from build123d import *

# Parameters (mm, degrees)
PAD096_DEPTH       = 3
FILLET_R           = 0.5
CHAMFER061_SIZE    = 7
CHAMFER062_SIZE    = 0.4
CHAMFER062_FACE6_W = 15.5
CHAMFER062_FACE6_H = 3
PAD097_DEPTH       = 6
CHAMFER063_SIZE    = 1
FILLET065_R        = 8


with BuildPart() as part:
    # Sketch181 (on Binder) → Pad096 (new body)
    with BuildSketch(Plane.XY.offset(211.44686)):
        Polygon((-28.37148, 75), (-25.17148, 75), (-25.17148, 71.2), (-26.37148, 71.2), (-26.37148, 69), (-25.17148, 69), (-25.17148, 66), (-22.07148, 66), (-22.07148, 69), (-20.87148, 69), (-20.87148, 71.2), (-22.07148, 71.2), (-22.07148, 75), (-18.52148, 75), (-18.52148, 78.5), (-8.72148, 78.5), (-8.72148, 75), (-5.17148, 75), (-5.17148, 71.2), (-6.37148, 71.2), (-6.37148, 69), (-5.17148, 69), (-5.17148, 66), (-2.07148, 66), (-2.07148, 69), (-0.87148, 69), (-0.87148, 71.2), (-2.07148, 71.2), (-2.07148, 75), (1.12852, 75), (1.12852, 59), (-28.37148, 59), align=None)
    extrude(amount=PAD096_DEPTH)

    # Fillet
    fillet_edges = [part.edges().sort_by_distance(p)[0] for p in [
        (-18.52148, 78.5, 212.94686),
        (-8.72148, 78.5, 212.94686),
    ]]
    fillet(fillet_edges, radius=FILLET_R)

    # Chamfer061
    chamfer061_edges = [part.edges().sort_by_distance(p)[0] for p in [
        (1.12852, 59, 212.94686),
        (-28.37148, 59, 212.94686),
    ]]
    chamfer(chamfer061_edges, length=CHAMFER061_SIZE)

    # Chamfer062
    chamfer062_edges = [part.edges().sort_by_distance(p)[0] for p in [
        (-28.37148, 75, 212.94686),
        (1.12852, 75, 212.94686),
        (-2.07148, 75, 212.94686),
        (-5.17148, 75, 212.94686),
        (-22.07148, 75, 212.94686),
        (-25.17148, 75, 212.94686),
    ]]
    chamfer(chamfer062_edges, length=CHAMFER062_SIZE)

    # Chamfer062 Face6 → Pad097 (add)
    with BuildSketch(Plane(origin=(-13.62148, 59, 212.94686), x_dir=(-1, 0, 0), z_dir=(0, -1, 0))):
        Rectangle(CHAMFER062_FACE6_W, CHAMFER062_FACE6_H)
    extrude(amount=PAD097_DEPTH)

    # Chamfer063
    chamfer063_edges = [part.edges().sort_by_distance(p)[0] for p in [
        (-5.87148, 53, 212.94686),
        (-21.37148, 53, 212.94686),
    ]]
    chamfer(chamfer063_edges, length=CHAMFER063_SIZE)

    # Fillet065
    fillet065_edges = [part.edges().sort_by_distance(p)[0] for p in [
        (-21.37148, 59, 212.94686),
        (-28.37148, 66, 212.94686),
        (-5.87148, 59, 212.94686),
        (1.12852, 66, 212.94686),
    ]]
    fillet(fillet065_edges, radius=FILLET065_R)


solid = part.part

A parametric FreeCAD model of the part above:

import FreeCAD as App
import Part
import Sketcher
from FreeCAD import Vector


def edges_at(feature, points):
    """Names of the edges that pass closest to the given points."""
    edges = feature.Shape.Edges
    near = lambda p: min(range(len(edges)), key=lambda i: edges[i].distToShape(Part.Vertex(*p))[0])
    return sorted({f"Edge{near(p) + 1}" for p in points})

doc = App.newDocument("Part")
params = doc.addObject("Spreadsheet::Sheet", "Params")
for row, (alias, value) in enumerate([
    ("sketch1_height", "16 mm"),
    ("sketch1_height2", "3 mm"),
    ("sketch1_width", "3.2 mm"),
    ("sketch1_width2", "29.5 mm"),
    ("sketch1_width3", "1.2 mm"),
    ("pad1_length", "3 mm"),
    ("fillet_radius", "0.5 mm"),
    ("chamfer_size", "7 mm"),
    ("chamfer2_size", "0.4 mm"),
    ("sketch2_height", "3 mm"),
    ("sketch2_width", "15.5 mm"),
    ("pad2_length", "6 mm"),
    ("chamfer3_size", "1 mm"),
    ("fillet2_radius", "8 mm"),
], start=1):
    params.set(f"A{row}", alias)
    params.set(f"B{row}", "=" + value)
    params.setAlias(f"B{row}", alias)

body = doc.addObject("PartDesign::Body", "Body")

sketch1 = body.newObject("Sketcher::SketchObject", "Sketch")
sketch1.AttachmentSupport = (doc.getObject("XY_Plane"), [""])
sketch1.MapMode = "FlatFace"
sketch1.AttachmentOffset = App.Placement(Vector(0, 0, 211.44686), App.Rotation())
sketch1.addGeometry(Part.LineSegment(Vector(-25.2, 75, 0), Vector(-28.4, 75, 0)), False)
sketch1.addGeometry(Part.LineSegment(Vector(-28.4, 75, 0), Vector(-28.4, 59, 0)), False)
sketch1.addGeometry(Part.LineSegment(Vector(-28.4, 59, 0), Vector(1.1, 59, 0)), False)
sketch1.addGeometry(Part.LineSegment(Vector(1.1, 59, 0), Vector(1.1, 75, 0)), False)
sketch1.addGeometry(Part.LineSegment(Vector(1.1, 75, 0), Vector(-2.1, 75, 0)), False)
sketch1.addGeometry(Part.LineSegment(Vector(-2.1, 75, 0), Vector(-2.1, 71.2, 0)), False)
sketch1.addGeometry(Part.LineSegment(Vector(-2.1, 71.2, 0), Vector(-0.9, 71.2, 0)), False)
sketch1.addGeometry(Part.LineSegment(Vector(-0.9, 71.2, 0), Vector(-0.9, 69, 0)), False)
sketch1.addGeometry(Part.LineSegment(Vector(-0.9, 69, 0), Vector(-2.1, 69, 0)), False)
sketch1.addGeometry(Part.LineSegment(Vector(-2.1, 69, 0), Vector(-2.1, 66, 0)), False)
sketch1.addGeometry(Part.LineSegment(Vector(-2.1, 66, 0), Vector(-5.2, 66, 0)), False)
sketch1.addGeometry(Part.LineSegment(Vector(-5.2, 66, 0), Vector(-5.2, 69, 0)), False)
sketch1.addGeometry(Part.LineSegment(Vector(-5.2, 69, 0), Vector(-6.4, 69, 0)), False)
sketch1.addGeometry(Part.LineSegment(Vector(-6.4, 69, 0), Vector(-6.4, 71.2, 0)), False)
sketch1.addGeometry(Part.LineSegment(Vector(-6.4, 71.2, 0), Vector(-5.2, 71.2, 0)), False)
sketch1.addGeometry(Part.LineSegment(Vector(-5.2, 71.2, 0), Vector(-5.2, 75, 0)), False)
sketch1.addGeometry(Part.LineSegment(Vector(-5.2, 75, 0), Vector(-8.7, 75, 0)), False)
sketch1.addGeometry(Part.LineSegment(Vector(-8.7, 75, 0), Vector(-8.7, 78.5, 0)), False)
sketch1.addGeometry(Part.LineSegment(Vector(-8.7, 78.5, 0), Vector(-18.5, 78.5, 0)), False)
sketch1.addGeometry(Part.LineSegment(Vector(-18.5, 78.5, 0), Vector(-18.5, 75, 0)), False)
sketch1.addGeometry(Part.LineSegment(Vector(-18.5, 75, 0), Vector(-22.1, 75, 0)), False)
sketch1.addGeometry(Part.LineSegment(Vector(-22.1, 75, 0), Vector(-22.1, 71.2, 0)), False)
sketch1.addGeometry(Part.LineSegment(Vector(-22.1, 71.2, 0), Vector(-20.9, 71.2, 0)), False)
sketch1.addGeometry(Part.LineSegment(Vector(-20.9, 71.2, 0), Vector(-20.9, 69, 0)), False)
sketch1.addGeometry(Part.LineSegment(Vector(-20.9, 69, 0), Vector(-22.1, 69, 0)), False)
sketch1.addGeometry(Part.LineSegment(Vector(-22.1, 69, 0), Vector(-22.1, 66, 0)), False)
sketch1.addGeometry(Part.LineSegment(Vector(-22.1, 66, 0), Vector(-25.2, 66, 0)), False)
sketch1.addGeometry(Part.LineSegment(Vector(-25.2, 66, 0), Vector(-25.2, 69, 0)), False)
sketch1.addGeometry(Part.LineSegment(Vector(-25.2, 69, 0), Vector(-26.4, 69, 0)), False)
sketch1.addGeometry(Part.LineSegment(Vector(-26.4, 69, 0), Vector(-26.4, 71.2, 0)), False)
sketch1.addGeometry(Part.LineSegment(Vector(-26.4, 71.2, 0), Vector(-25.2, 71.2, 0)), False)
sketch1.addGeometry(Part.LineSegment(Vector(-25.2, 71.2, 0), Vector(-25.2, 75, 0)), False)
sketch1.addConstraint(Sketcher.Constraint("Coincident", 0, 2, 1, 1))
sketch1.addConstraint(Sketcher.Constraint("Coincident", 1, 2, 2, 1))
sketch1.addConstraint(Sketcher.Constraint("Coincident", 2, 2, 3, 1))
sketch1.addConstraint(Sketcher.Constraint("Coincident", 3, 2, 4, 1))
sketch1.addConstraint(Sketcher.Constraint("Coincident", 4, 2, 5, 1))
sketch1.addConstraint(Sketcher.Constraint("Coincident", 5, 2, 6, 1))
sketch1.addConstraint(Sketcher.Constraint("Coincident", 6, 2, 7, 1))
sketch1.addConstraint(Sketcher.Constraint("Coincident", 7, 2, 8, 1))
sketch1.addConstraint(Sketcher.Constraint("Coincident", 8, 2, 9, 1))
sketch1.addConstraint(Sketcher.Constraint("Coincident", 9, 2, 10, 1))
sketch1.addConstraint(Sketcher.Constraint("Coincident", 10, 2, 11, 1))
sketch1.addConstraint(Sketcher.Constraint("Coincident", 11, 2, 12, 1))
sketch1.addConstraint(Sketcher.Constraint("Coincident", 12, 2, 13, 1))
sketch1.addConstraint(Sketcher.Constraint("Coincident", 13, 2, 14, 1))
sketch1.addConstraint(Sketcher.Constraint("Coincident", 14, 2, 15, 1))
sketch1.addConstraint(Sketcher.Constraint("Coincident", 15, 2, 16, 1))
sketch1.addConstraint(Sketcher.Constraint("Coincident", 16, 2, 17, 1))
sketch1.addConstraint(Sketcher.Constraint("Coincident", 17, 2, 18, 1))
sketch1.addConstraint(Sketcher.Constraint("Coincident", 18, 2, 19, 1))
sketch1.addConstraint(Sketcher.Constraint("Coincident", 19, 2, 20, 1))
sketch1.addConstraint(Sketcher.Constraint("Coincident", 20, 2, 21, 1))
sketch1.addConstraint(Sketcher.Constraint("Coincident", 21, 2, 22, 1))
sketch1.addConstraint(Sketcher.Constraint("Coincident", 22, 2, 23, 1))
sketch1.addConstraint(Sketcher.Constraint("Coincident", 23, 2, 24, 1))
sketch1.addConstraint(Sketcher.Constraint("Coincident", 24, 2, 25, 1))
sketch1.addConstraint(Sketcher.Constraint("Coincident", 25, 2, 26, 1))
sketch1.addConstraint(Sketcher.Constraint("Coincident", 26, 2, 27, 1))
sketch1.addConstraint(Sketcher.Constraint("Coincident", 27, 2, 28, 1))
sketch1.addConstraint(Sketcher.Constraint("Coincident", 28, 2, 29, 1))
sketch1.addConstraint(Sketcher.Constraint("Coincident", 29, 2, 30, 1))
sketch1.addConstraint(Sketcher.Constraint("Coincident", 30, 2, 31, 1))
sketch1.addConstraint(Sketcher.Constraint("Coincident", 31, 2, 0, 1))
sketch1.addConstraint(Sketcher.Constraint("Horizontal", 0))
sketch1.addConstraint(Sketcher.Constraint("Vertical", 1))
sketch1.addConstraint(Sketcher.Constraint("Horizontal", 2))
sketch1.addConstraint(Sketcher.Constraint("Vertical", 3))
sketch1.addConstraint(Sketcher.Constraint("Horizontal", 4))
sketch1.addConstraint(Sketcher.Constraint("Vertical", 5))
sketch1.addConstraint(Sketcher.Constraint("Horizontal", 6))
sketch1.addConstraint(Sketcher.Constraint("Vertical", 7))
sketch1.addConstraint(Sketcher.Constraint("Horizontal", 8))
sketch1.addConstraint(Sketcher.Constraint("Vertical", 9))
sketch1.addConstraint(Sketcher.Constraint("Horizontal", 10))
sketch1.addConstraint(Sketcher.Constraint("Vertical", 11))
sketch1.addConstraint(Sketcher.Constraint("Horizontal", 12))
sketch1.addConstraint(Sketcher.Constraint("Vertical", 13))
sketch1.addConstraint(Sketcher.Constraint("Horizontal", 14))
sketch1.addConstraint(Sketcher.Constraint("Vertical", 15))
sketch1.addConstraint(Sketcher.Constraint("Horizontal", 16))
sketch1.addConstraint(Sketcher.Constraint("Vertical", 17))
sketch1.addConstraint(Sketcher.Constraint("Horizontal", 18))
sketch1.addConstraint(Sketcher.Constraint("Vertical", 19))
sketch1.addConstraint(Sketcher.Constraint("Horizontal", 20))
sketch1.addConstraint(Sketcher.Constraint("Vertical", 21))
sketch1.addConstraint(Sketcher.Constraint("Horizontal", 22))
sketch1.addConstraint(Sketcher.Constraint("Vertical", 23))
sketch1.addConstraint(Sketcher.Constraint("Horizontal", 24))
sketch1.addConstraint(Sketcher.Constraint("Vertical", 25))
sketch1.addConstraint(Sketcher.Constraint("Horizontal", 26))
sketch1.addConstraint(Sketcher.Constraint("Vertical", 27))
sketch1.addConstraint(Sketcher.Constraint("Horizontal", 28))
sketch1.addConstraint(Sketcher.Constraint("Vertical", 29))
sketch1.addConstraint(Sketcher.Constraint("Horizontal", 30))
sketch1.addConstraint(Sketcher.Constraint("Vertical", 31))
sketch1.addConstraint(Sketcher.Constraint("Horizontal", 0, 2, 3, 2))
sketch1.addConstraint(Sketcher.Constraint("Horizontal", 8, 2, 11, 2))
sketch1.addConstraint(Sketcher.Constraint("Horizontal", 6, 2, 13, 2))
sketch1.addConstraint(Sketcher.Constraint("Horizontal", 4, 2, 15, 2))
sketch1.addConstraint(Sketcher.Constraint("Horizontal", 16, 2, 19, 2))
sketch1.addConstraint(Sketcher.Constraint("Horizontal", 14, 2, 21, 2))
sketch1.addConstraint(Sketcher.Constraint("Horizontal", 12, 2, 23, 2))
sketch1.addConstraint(Sketcher.Constraint("Horizontal", 10, 2, 25, 2))
sketch1.addConstraint(Sketcher.Constraint("Horizontal", 24, 2, 27, 2))
sketch1.addConstraint(Sketcher.Constraint("Horizontal", 22, 2, 29, 2))
sketch1.addConstraint(Sketcher.Constraint("Vertical", 5, 2, 8, 2))
sketch1.addConstraint(Sketcher.Constraint("Vertical", 11, 2, 14, 2))
sketch1.addConstraint(Sketcher.Constraint("Vertical", 21, 2, 24, 2))
sketch1.addConstraint(Sketcher.Constraint("Vertical", 27, 2, 30, 2))
sketch1.addConstraint(Sketcher.Constraint("Equal", 0, 4))
sketch1.addConstraint(Sketcher.Constraint("Equal", 8, 12))
sketch1.addConstraint(Sketcher.Constraint("Equal", 16, 20))
sketch1.addConstraint(Sketcher.Constraint("Equal", 14, 22))
sketch1.addConstraint(Sketcher.Constraint("Equal", 10, 26))
sketch1.addConstraint(Sketcher.Constraint("Equal", 24, 28))
sketch1.addConstraint(Sketcher.Constraint("DistanceY", 1, 2, 1, 1, 16.0))
sketch1.addConstraint(Sketcher.Constraint("DistanceY", 9, 2, 9, 1, 3.0))
sketch1.addConstraint(Sketcher.Constraint("DistanceX", 0, 2, 0, 1, 3.2))
sketch1.addConstraint(Sketcher.Constraint("DistanceX", 2, 1, 2, 2, 29.5))
sketch1.addConstraint(Sketcher.Constraint("DistanceX", 6, 1, 6, 2, 1.2))
sketch1.addConstraint(Sketcher.Constraint("DistanceX", 10, 2, 10, 1, 3.1))
sketch1.addConstraint(Sketcher.Constraint("DistanceX", 18, 2, 18, 1, 9.8))
sketch1.addConstraint(Sketcher.Constraint("DistanceY", 5, 2, 5, 1, 3.8))
sketch1.addConstraint(Sketcher.Constraint("DistanceY", 7, 2, 7, 1, 2.2))
sketch1.addConstraint(Sketcher.Constraint("DistanceY", 17, 1, 17, 2, 3.5))
sketch1.addConstraint(Sketcher.Constraint("DistanceY", -1, 1, 0, 2, 75.0))
sketch1.addConstraint(Sketcher.Constraint("DistanceX", 0, 2, -1, 1, 28.37148))
sketch1.setExpression("Constraints[84]", "Params.sketch1_height")
sketch1.setExpression("Constraints[85]", "Params.sketch1_height2")
sketch1.setExpression("Constraints[86]", "Params.sketch1_width")
sketch1.setExpression("Constraints[87]", "Params.sketch1_width2")
sketch1.setExpression("Constraints[88]", "Params.sketch1_width3")
pad1 = body.newObject("PartDesign::Pad", "Pad")
pad1.Profile = sketch1
pad1.setExpression("Length", "Params.pad1_length")
doc.recompute()

fillet = body.newObject("PartDesign::Fillet", "Fillet")
fillet.Base = (pad1, edges_at(pad1, [(-18.521, 78.5, 212.947), (-8.721, 78.5, 212.947)]))
fillet.setExpression("Radius", "Params.fillet_radius")
doc.recompute()

chamfer = body.newObject("PartDesign::Chamfer", "Chamfer")
chamfer.Base = (fillet, edges_at(fillet, [(1.129, 59, 212.947), (-28.371, 59, 212.947)]))
chamfer.setExpression("Size", "Params.chamfer_size")
doc.recompute()

chamfer2 = body.newObject("PartDesign::Chamfer", "Chamfer001")
chamfer2.Base = (chamfer, edges_at(chamfer, [
    (-28.371, 75, 212.947),
    (1.129, 75, 212.947),
    (-2.071, 75, 212.947),
    (-5.171, 75, 212.947),
    (-22.071, 75, 212.947),
    (-25.171, 75, 212.947),
]))
chamfer2.setExpression("Size", "Params.chamfer2_size")

sketch2 = body.newObject("Sketcher::SketchObject", "Sketch001")
sketch2.AttachmentSupport = (doc.getObject("XZ_Plane"), [""])
sketch2.MapMode = "FlatFace"
sketch2.AttachmentOffset = App.Placement(Vector(0, 0, -59), App.Rotation())
sketch2.addGeometry(Part.LineSegment(Vector(-5.9, 211.4, 0), Vector(-5.9, 214.4, 0)), False)
sketch2.addGeometry(Part.LineSegment(Vector(-5.9, 214.4, 0), Vector(-21.4, 214.4, 0)), False)
sketch2.addGeometry(Part.LineSegment(Vector(-21.4, 214.4, 0), Vector(-21.4, 211.4, 0)), False)
sketch2.addGeometry(Part.LineSegment(Vector(-21.4, 211.4, 0), Vector(-5.9, 211.4, 0)), False)
sketch2.addConstraint(Sketcher.Constraint("Coincident", 0, 2, 1, 1))
sketch2.addConstraint(Sketcher.Constraint("Coincident", 1, 2, 2, 1))
sketch2.addConstraint(Sketcher.Constraint("Coincident", 2, 2, 3, 1))
sketch2.addConstraint(Sketcher.Constraint("Coincident", 3, 2, 0, 1))
sketch2.addConstraint(Sketcher.Constraint("Vertical", 0))
sketch2.addConstraint(Sketcher.Constraint("Horizontal", 1))
sketch2.addConstraint(Sketcher.Constraint("Vertical", 2))
sketch2.addConstraint(Sketcher.Constraint("Horizontal", 3))
sketch2.addConstraint(Sketcher.Constraint("DistanceY", 0, 1, 0, 2, 3.0))
sketch2.addConstraint(Sketcher.Constraint("DistanceX", 1, 2, 1, 1, 15.5))
sketch2.addConstraint(Sketcher.Constraint("DistanceX", 0, 2, -1, 1, 5.87148))
sketch2.addConstraint(Sketcher.Constraint("DistanceY", -1, 1, 0, 2, 214.44686))
sketch2.setExpression("Constraints[8]", "Params.sketch2_height")
sketch2.setExpression("Constraints[9]", "Params.sketch2_width")
pad2 = body.newObject("PartDesign::Pad", "Pad001")
pad2.Profile = sketch2
pad2.setExpression("Length", "Params.pad2_length")
doc.recompute()

chamfer3 = body.newObject("PartDesign::Chamfer", "Chamfer002")
chamfer3.Base = (pad2, edges_at(pad2, [(-5.871, 53, 212.947), (-21.371, 53, 212.947)]))
chamfer3.setExpression("Size", "Params.chamfer3_size")
doc.recompute()

fillet2 = body.newObject("PartDesign::Fillet", "Fillet001")
fillet2.Base = (chamfer3, edges_at(chamfer3, [
    (-21.371, 59, 212.947),
    (-28.371, 66, 212.947),
    (-5.871, 59, 212.947),
    (1.129, 66, 212.947),
]))
fillet2.setExpression("Radius", "Params.fillet2_radius")

doc.recompute()
